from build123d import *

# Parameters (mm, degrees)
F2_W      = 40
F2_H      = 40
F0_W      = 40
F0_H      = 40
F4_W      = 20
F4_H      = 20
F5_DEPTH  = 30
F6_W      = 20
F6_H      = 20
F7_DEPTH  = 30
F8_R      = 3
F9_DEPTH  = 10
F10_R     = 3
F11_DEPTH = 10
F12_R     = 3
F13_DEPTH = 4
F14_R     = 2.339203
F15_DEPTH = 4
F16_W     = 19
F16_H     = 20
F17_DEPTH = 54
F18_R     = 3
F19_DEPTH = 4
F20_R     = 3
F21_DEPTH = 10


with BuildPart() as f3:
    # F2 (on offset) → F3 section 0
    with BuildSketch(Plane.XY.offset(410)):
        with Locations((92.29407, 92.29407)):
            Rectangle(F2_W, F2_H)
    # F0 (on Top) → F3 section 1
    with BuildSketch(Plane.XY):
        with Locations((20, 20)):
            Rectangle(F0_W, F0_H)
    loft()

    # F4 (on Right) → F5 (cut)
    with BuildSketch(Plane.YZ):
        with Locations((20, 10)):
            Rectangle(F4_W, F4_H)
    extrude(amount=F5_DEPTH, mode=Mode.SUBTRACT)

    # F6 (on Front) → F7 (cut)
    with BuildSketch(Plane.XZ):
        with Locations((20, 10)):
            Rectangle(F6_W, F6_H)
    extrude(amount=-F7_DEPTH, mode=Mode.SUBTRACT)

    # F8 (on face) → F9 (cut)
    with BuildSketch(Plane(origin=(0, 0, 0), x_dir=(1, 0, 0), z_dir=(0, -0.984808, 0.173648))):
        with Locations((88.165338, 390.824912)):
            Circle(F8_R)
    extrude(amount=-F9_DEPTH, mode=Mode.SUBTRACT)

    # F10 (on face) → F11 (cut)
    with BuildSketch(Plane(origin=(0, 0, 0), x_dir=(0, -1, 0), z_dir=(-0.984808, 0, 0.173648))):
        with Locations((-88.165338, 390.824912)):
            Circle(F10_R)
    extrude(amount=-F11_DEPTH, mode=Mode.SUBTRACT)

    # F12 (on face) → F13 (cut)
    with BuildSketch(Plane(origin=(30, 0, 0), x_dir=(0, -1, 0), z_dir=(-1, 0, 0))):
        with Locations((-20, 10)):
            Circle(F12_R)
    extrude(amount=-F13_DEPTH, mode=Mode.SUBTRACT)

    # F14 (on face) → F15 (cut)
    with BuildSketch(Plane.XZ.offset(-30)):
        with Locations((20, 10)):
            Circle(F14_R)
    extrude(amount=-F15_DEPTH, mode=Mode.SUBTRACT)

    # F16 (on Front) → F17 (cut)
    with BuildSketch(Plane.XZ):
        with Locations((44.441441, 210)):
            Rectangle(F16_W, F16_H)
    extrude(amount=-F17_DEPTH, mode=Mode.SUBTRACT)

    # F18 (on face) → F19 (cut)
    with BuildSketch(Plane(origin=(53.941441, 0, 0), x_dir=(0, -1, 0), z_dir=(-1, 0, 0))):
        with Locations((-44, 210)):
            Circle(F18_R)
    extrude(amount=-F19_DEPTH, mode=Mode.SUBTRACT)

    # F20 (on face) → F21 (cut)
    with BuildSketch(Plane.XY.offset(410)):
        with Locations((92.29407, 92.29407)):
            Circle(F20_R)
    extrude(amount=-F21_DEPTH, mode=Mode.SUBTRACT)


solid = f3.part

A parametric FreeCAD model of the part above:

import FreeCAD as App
import Part
import Sketcher

V = App.Vector
Q = App.Units.Quantity

doc = App.newDocument("Part")
body = doc.addObject("PartDesign::Body", "Body")

# Sketch on XY plane
sketch1 = body.newObject("Sketcher::SketchObject", "Sketch")
sketch1.AttachmentSupport = (doc.getObject("XY_Plane"), [""])
sketch1.MapMode = "FlatFace"
sketch1.AttachmentOffset = App.Placement(V(0, 0, 410), App.Rotation())
sketch1.addGeometry([
    Part.LineSegment(V(72, 112, 0), V(72, 72, 0)),
    Part.LineSegment(V(72, 72, 0), V(112, 72, 0)),
    Part.LineSegment(V(112, 72, 0), V(112, 112, 0)),
    Part.LineSegment(V(112, 112, 0), V(72, 112, 0)),
], False)
sketch1.addConstraint([
    Sketcher.Constraint("Coincident", 0, 2, 1, 1),
    Sketcher.Constraint("Coincident", 1, 2, 2, 1),
    Sketcher.Constraint("Coincident", 2, 2, 3, 1),
    Sketcher.Constraint("Coincident", 3, 2, 0, 1),
    Sketcher.Constraint("Vertical", 0),
    Sketcher.Constraint("Horizontal", 1),
    Sketcher.Constraint("Vertical", 2),
    Sketcher.Constraint("Horizontal", 3),
    Sketcher.Constraint("Equal", 3, 0),
    Sketcher.Constraint("DistanceX", 1, 1, 1, 2, Q("40 mm")),
    Sketcher.Constraint("DistanceX", -1, 1, 0, 2, Q("72.29407 mm")),
    Sketcher.Constraint("DistanceY", -1, 1, 0, 2, Q("72.29407 mm")),
])

# Sketch on XY plane
sketch2 = body.newObject("Sketcher::SketchObject", "Sketch001")
sketch2.AttachmentSupport = (doc.getObject("XY_Plane"), [""])
sketch2.MapMode = "FlatFace"
sketch2.addGeometry([
    Part.LineSegment(V(0, 40, 0), V(0, 0, 0)),
    Part.LineSegment(V(0, 0, 0), V(40, 0, 0)),
    Part.LineSegment(V(40, 0, 0), V(40, 40, 0)),
    Part.LineSegment(V(40, 40, 0), V(0, 40, 0)),
], False)
sketch2.addConstraint([
    Sketcher.Constraint("Coincident", 0, 2, 1, 1),
    Sketcher.Constraint("Coincident", 1, 2, 2, 1),
    Sketcher.Constraint("Coincident", 2, 2, 3, 1),
    Sketcher.Constraint("Coincident", 3, 2, 0, 1),
    Sketcher.Constraint("Vertical", 0),
    Sketcher.Constraint("Horizontal", 1),
    Sketcher.Constraint("Vertical", 2),
    Sketcher.Constraint("Horizontal", 3),
    Sketcher.Constraint("Coincident", 0, 2, -1, 1),
    Sketcher.Constraint("Equal", 3, 0),
    Sketcher.Constraint("DistanceX", 1, 1, 1, 2, Q("40 mm")),
])

additiveloft = body.newObject("PartDesign::AdditiveLoft", "AdditiveLoft")
additiveloft.Profile = sketch1
additiveloft.Sections = [sketch2]

# Sketch on YZ plane
sketch3 = body.newObject("Sketcher::SketchObject", "Sketch002")
sketch3.AttachmentSupport = (doc.getObject("YZ_Plane"), [""])
sketch3.MapMode = "FlatFace"
sketch3.addGeometry([
    Part.LineSegment(V(10, 20, 0), V(10, 0, 0)),
    Part.LineSegment(V(10, 0, 0), V(30, 0, 0)),
    Part.LineSegment(V(30, 0, 0), V(30, 20, 0)),
    Part.LineSegment(V(30, 20, 0), V(10, 20, 0)),
], False)
sketch3.addConstraint([
    Sketcher.Constraint("Coincident", 0, 2, 1, 1),
    Sketcher.Constraint("Coincident", 1, 2, 2, 1),
    Sketcher.Constraint("Coincident", 2, 2, 3, 1),
    Sketcher.Constraint("Coincident", 3, 2, 0, 1),
    Sketcher.Constraint("Vertical", 0),
    Sketcher.Constraint("Horizontal", 1),
    Sketcher.Constraint("Vertical", 2),
    Sketcher.Constraint("Horizontal", 3),
    Sketcher.Constraint("PointOnObject", 0, 2, -1),
    Sketcher.Constraint("Equal", 3, 0),
    Sketcher.Constraint("DistanceX", 1, 1, 1, 2, Q("20 mm")),
    Sketcher.Constraint("DistanceX", -1, 1, 0, 2, Q("10 mm")),
])
pocket1 = body.newObject("PartDesign::Pocket", "Pocket")
pocket1.Profile = sketch3
pocket1.Length = 30
pocket1.Reversed = True

# Sketch on XZ plane
sketch4 = body.newObject("Sketcher::SketchObject", "Sketch003")
sketch4.AttachmentSupport = (doc.getObject("XZ_Plane"), [""])
sketch4.MapMode = "FlatFace"
sketch4.addGeometry([
    Part.LineSegment(V(10, 20, 0), V(10, 0, 0)),
    Part.LineSegment(V(10, 0, 0), V(30, 0, 0)),
    Part.LineSegment(V(30, 0, 0), V(30, 20, 0)),
    Part.LineSegment(V(30, 20, 0), V(10, 20, 0)),
], False)
sketch4.addConstraint([
    Sketcher.Constraint("Coincident", 0, 2, 1, 1),
    Sketcher.Constraint("Coincident", 1, 2, 2, 1),
    Sketcher.Constraint("Coincident", 2, 2, 3, 1),
    Sketcher.Constraint("Coincident", 3, 2, 0, 1),
    Sketcher.Constraint("Vertical", 0),
    Sketcher.Constraint("Horizontal", 1),
    Sketcher.Constraint("Vertical", 2),
    Sketcher.Constraint("Horizontal", 3),
    Sketcher.Constraint("PointOnObject", 0, 2, -1),
    Sketcher.Constraint("Equal", 3, 0),
    Sketcher.Constraint("DistanceX", 1, 1, 1, 2, Q("20 mm")),
    Sketcher.Constraint("DistanceX", -1, 1, 0, 2, Q("10 mm")),
])
pocket2 = body.newObject("PartDesign::Pocket", "Pocket001")
pocket2.Profile = sketch4
pocket2.Length = 30

# Sketch on an angled plane
sketch5 = body.newObject("Sketcher::SketchObject", "Sketch004")
sketch5.Placement = App.Placement(V(0, 0, 0), App.Rotation(V(1, 0, 0), V(0, 0.173647963, 0.984807791), V(0, -0.984807791, 0.173647963), "ZXY"))
sketch5.addGeometry(Part.Circle(V(88.2, 390.8, 0), V(0, 0, 1), 3), False)
sketch5.addConstraint([
    Sketcher.Constraint("Diameter", 0, Q("6 mm")),
    Sketcher.Constraint("DistanceX", -1, 1, 0, 3, Q("88.165338 mm")),
    Sketcher.Constraint("DistanceY", -1, 1, 0, 3, Q("390.824912 mm")),
])
pocket3 = body.newObject("PartDesign::Pocket", "Pocket002")
pocket3.Profile = sketch5
pocket3.Length = 10

# Sketch on an angled plane
sketch6 = body.newObject("Sketcher::SketchObject", "Sketch005")
sketch6.Placement = App.Placement(V(0, 0, 0), App.Rotation(V(0, -1, 0), V(0.173647963, 0, 0.984807791), V(-0.984807791, 0, 0.173647963), "ZXY"))
sketch6.addGeometry(Part.Circle(V(-88.2, 390.8, 0), V(0, 0, 1), 3), False)
sketch6.addConstraint([
    Sketcher.Constraint("Diameter", 0, Q("6 mm")),
    Sketcher.Constraint("DistanceX", 0, 3, -1, 1, Q("88.165338 mm")),
    Sketcher.Constraint("DistanceY", -1, 1, 0, 3, Q("390.824912 mm")),
])
pocket4 = body.newObject("PartDesign::Pocket", "Pocket003")
pocket4.Profile = sketch6
pocket4.Length = 10

# Sketch on YZ plane
sketch7 = body.newObject("Sketcher::SketchObject", "Sketch006")
sketch7.AttachmentSupport = (doc.getObject("YZ_Plane"), [""])
sketch7.MapMode = "FlatFace"
sketch7.AttachmentOffset = App.Placement(V(0, 0, 30), App.Rotation())
sketch7.addGeometry(Part.Circle(V(20, 10, 0), V(0, 0, 1), 3), False)
sketch7.addConstraint([
    Sketcher.Constraint("Diameter", 0, Q("6 mm")),
    Sketcher.Constraint("DistanceX", -1, 1, 0, 3, Q("20 mm")),
    Sketcher.Constraint("DistanceY", -1, 1, 0, 3, Q("10 mm")),
])
pocket5 = body.newObject("PartDesign::Pocket", "Pocket004")
pocket5.Profile = sketch7
pocket5.Length = 4
pocket5.Reversed = True

# Sketch on XZ plane
sketch8 = body.newObject("Sketcher::SketchObject", "Sketch007")
sketch8.AttachmentSupport = (doc.getObject("XZ_Plane"), [""])
sketch8.MapMode = "FlatFace"
sketch8.AttachmentOffset = App.Placement(V(0, 0, -30), App.Rotation())
sketch8.addGeometry(Part.Circle(V(20, 10, 0), V(0, 0, 1), 2.3), False)
sketch8.addConstraint([
    Sketcher.Constraint("DistanceX", -1, 1, 0, 3, Q("20 mm")),
    Sketcher.Constraint("DistanceY", -1, 1, 0, 3, Q("10 mm")),
    Sketcher.Constraint("Diameter", 0, Q("4.678406 mm")),
])
pocket6 = body.newObject("PartDesign::Pocket", "Pocket005")
pocket6.Profile = sketch8
pocket6.Length = 4

# Sketch on XZ plane
sketch9 = body.newObject("Sketcher::SketchObject", "Sketch008")
sketch9.AttachmentSupport = (doc.getObject("XZ_Plane"), [""])
sketch9.MapMode = "FlatFace"
sketch9.addGeometry([
    Part.LineSegment(V(35, 220, 0), V(35, 200, 0)),
    Part.LineSegment(V(35, 200, 0), V(54, 200, 0)),
    Part.LineSegment(V(54, 200, 0), V(54, 220, 0)),
    Part.LineSegment(V(54, 220, 0), V(35, 220, 0)),
], False)
sketch9.addConstraint([
    Sketcher.Constraint("Coincident", 0, 2, 1, 1),
    Sketcher.Constraint("Coincident", 1, 2, 2, 1),
    Sketcher.Constraint("Coincident", 2, 2, 3, 1),
    Sketcher.Constraint("Coincident", 3, 2, 0, 1),
    Sketcher.Constraint("Vertical", 0),
    Sketcher.Constraint("Horizontal", 1),
    Sketcher.Constraint("Vertical", 2),
    Sketcher.Constraint("Horizontal", 3),
    Sketcher.Constraint("DistanceX", 1, 1, 1, 2, Q("19 mm")),
    Sketcher.Constraint("DistanceY", 0, 2, 0, 1, Q("20 mm")),
    Sketcher.Constraint("DistanceY", -1, 1, 0, 2, Q("200 mm")),
    Sketcher.Constraint("DistanceX", -1, 1, 0, 2, Q("34.941441 mm")),
])
pocket7 = body.newObject("PartDesign::Pocket", "Pocket006")
pocket7.Profile = sketch9
pocket7.Length = 54

# Sketch on YZ plane
sketch10 = body.newObject("Sketcher::SketchObject", "Sketch009")
sketch10.AttachmentSupport = (doc.getObject("YZ_Plane"), [""])
sketch10.MapMode = "FlatFace"
sketch10.AttachmentOffset = App.Placement(V(0, 0, 53.941441), App.Rotation())
sketch10.addGeometry(Part.Circle(V(44, 210, 0), V(0, 0, 1), 3), False)
sketch10.addConstraint([
    Sketcher.Constraint("Diameter", 0, Q("6 mm")),
    Sketcher.Constraint("DistanceX", -1, 1, 0, 3, Q("44 mm")),
    Sketcher.Constraint("DistanceY", -1, 1, 0, 3, Q("210 mm")),
])
pocket8 = body.newObject("PartDesign::Pocket", "Pocket007")
pocket8.Profile = sketch10
pocket8.Length = 4
pocket8.Reversed = True

# Sketch on XY plane
sketch11 = body.newObject("Sketcher::SketchObject", "Sketch010")
sketch11.AttachmentSupport = (doc.getObject("XY_Plane"), [""])
sketch11.MapMode = "FlatFace"
sketch11.AttachmentOffset = App.Placement(V(0, 0, 410), App.Rotation())
sketch11.addGeometry(Part.Circle(V(92.3, 92.3, 0), V(0, 0, 1), 3), False)
sketch11.addConstraint([
    Sketcher.Constraint("Diameter", 0, Q("6 mm")),
    Sketcher.Constraint("DistanceX", -1, 1, 0, 3, Q("92.29407 mm")),
    Sketcher.Constraint("DistanceY", -1, 1, 0, 3, Q("92.29407 mm")),
])
pocket9 = body.newObject("PartDesign::Pocket", "Pocket008")
pocket9.Profile = sketch11
pocket9.Length = 10

doc.recompute()
